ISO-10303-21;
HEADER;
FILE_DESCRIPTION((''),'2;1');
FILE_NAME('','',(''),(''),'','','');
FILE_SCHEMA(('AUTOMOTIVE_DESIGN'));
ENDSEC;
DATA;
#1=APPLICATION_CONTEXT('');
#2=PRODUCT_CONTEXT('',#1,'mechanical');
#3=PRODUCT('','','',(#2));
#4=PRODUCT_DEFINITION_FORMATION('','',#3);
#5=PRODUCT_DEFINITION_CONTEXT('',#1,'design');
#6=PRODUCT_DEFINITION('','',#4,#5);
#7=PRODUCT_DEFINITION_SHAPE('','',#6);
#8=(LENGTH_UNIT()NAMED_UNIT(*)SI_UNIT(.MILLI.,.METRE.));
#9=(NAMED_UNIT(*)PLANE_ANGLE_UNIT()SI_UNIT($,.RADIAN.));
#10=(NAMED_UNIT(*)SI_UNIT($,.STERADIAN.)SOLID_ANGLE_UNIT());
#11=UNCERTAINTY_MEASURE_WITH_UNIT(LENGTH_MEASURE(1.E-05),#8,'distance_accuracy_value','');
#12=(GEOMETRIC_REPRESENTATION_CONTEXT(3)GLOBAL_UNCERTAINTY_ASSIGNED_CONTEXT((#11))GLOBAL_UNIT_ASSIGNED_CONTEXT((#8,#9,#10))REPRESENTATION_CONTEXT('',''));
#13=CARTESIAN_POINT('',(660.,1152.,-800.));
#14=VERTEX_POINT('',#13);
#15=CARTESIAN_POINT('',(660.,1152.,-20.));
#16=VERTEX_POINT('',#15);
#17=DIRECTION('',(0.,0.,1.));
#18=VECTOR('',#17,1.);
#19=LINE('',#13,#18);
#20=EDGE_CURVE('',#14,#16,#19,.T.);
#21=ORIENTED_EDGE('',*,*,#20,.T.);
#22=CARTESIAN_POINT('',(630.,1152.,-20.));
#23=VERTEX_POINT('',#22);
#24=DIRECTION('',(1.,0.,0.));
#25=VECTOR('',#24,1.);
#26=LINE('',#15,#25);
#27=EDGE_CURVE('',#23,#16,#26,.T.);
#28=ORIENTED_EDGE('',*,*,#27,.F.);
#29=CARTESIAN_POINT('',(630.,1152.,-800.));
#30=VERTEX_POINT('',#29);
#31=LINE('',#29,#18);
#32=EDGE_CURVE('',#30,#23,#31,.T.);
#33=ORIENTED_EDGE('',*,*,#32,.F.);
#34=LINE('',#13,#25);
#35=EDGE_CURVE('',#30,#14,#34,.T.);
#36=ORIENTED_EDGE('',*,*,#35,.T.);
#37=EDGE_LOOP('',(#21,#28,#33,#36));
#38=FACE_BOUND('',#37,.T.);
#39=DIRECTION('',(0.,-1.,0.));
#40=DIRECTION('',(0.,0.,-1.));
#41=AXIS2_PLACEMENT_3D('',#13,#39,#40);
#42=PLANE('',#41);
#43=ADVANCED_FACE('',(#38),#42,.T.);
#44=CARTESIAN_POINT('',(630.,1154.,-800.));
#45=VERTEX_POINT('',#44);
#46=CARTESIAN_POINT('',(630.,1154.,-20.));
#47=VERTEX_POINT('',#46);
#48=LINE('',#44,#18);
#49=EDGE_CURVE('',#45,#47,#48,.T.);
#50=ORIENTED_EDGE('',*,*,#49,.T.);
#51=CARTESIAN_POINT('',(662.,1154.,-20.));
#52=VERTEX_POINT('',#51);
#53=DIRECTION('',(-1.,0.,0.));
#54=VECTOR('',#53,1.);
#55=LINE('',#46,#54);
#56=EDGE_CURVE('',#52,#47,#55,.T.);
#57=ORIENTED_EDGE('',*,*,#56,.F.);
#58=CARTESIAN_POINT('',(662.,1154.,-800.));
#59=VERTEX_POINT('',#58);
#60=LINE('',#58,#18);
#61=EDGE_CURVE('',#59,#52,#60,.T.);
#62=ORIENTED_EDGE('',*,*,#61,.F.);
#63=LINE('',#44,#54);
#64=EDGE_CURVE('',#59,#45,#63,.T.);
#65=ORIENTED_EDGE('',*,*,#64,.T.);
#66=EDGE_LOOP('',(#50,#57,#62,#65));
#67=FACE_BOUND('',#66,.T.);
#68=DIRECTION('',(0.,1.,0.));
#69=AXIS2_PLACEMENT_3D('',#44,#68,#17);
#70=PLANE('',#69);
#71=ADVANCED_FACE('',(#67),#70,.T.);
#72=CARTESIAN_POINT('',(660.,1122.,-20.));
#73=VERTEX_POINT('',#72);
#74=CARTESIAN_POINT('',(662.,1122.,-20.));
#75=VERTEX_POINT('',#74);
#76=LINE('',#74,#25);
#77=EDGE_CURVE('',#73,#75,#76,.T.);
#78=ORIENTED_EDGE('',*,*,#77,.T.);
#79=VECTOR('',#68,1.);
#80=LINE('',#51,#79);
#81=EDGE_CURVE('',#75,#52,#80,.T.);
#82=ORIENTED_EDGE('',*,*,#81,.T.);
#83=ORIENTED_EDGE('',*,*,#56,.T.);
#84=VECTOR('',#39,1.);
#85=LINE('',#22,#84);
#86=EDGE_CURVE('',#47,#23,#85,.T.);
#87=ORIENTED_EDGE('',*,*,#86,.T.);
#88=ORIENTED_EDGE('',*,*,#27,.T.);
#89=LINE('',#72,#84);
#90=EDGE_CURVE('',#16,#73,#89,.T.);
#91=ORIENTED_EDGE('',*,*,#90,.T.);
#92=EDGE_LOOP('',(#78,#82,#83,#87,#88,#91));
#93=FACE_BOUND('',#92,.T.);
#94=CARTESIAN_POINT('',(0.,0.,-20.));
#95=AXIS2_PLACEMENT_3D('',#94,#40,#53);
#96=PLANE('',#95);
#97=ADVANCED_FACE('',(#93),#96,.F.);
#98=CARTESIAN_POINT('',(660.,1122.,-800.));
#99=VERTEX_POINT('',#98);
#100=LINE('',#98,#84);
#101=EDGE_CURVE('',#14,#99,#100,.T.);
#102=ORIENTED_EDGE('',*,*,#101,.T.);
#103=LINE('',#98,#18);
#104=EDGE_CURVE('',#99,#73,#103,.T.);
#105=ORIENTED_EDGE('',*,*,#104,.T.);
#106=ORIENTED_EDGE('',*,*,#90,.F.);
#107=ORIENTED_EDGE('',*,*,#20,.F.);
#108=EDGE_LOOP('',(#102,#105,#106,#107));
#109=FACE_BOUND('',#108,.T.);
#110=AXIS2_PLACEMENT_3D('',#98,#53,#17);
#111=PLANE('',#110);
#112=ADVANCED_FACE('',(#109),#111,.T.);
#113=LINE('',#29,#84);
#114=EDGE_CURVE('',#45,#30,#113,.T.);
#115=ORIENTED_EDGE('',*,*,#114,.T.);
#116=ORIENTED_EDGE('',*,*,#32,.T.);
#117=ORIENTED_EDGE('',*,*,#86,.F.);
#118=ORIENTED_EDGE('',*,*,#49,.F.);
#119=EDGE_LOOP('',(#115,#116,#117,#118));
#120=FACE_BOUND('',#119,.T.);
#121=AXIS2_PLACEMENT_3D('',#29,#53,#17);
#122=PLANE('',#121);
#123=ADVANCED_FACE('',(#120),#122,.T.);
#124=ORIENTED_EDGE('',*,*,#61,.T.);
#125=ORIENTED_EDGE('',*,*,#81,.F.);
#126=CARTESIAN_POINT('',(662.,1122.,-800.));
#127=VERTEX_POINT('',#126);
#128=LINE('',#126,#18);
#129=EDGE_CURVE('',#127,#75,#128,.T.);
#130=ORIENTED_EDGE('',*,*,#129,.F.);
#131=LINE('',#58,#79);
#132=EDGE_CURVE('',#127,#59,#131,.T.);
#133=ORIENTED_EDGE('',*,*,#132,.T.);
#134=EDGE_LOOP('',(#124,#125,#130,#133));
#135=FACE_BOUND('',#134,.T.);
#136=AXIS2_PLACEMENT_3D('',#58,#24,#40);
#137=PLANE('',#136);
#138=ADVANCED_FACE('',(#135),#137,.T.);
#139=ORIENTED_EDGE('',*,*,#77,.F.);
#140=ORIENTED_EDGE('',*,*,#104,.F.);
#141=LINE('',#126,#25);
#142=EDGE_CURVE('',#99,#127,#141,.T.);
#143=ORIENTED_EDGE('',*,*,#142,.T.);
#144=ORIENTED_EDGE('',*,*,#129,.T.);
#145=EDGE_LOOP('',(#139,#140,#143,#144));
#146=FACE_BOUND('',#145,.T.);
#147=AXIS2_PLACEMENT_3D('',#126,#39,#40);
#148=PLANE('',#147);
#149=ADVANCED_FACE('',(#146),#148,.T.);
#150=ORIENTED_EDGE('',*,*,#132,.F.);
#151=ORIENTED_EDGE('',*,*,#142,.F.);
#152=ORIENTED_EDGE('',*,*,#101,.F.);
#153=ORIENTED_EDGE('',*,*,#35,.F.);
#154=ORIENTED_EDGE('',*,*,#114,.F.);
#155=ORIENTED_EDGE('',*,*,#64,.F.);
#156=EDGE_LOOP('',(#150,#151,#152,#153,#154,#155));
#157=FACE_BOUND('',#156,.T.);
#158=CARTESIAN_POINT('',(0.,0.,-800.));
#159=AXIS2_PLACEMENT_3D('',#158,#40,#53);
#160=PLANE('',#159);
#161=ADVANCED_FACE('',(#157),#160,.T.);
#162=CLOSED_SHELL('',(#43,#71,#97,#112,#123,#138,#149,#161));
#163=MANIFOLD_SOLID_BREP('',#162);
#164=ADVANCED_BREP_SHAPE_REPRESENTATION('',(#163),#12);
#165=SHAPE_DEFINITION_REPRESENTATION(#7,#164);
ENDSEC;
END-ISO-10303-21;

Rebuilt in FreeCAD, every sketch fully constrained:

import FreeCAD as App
import Part
import Sketcher

V = App.Vector

doc = App.newDocument("Part")
body = doc.addObject("PartDesign::Body", "Body")

# Sketch on XY plane
sketch1 = doc.addObject("Sketcher::SketchObject", "Sketch")
body.addObject(sketch1)
sketch1.AttachmentSupport = (doc.XY_Plane, [""])
sketch1.MapMode = "FlatFace"
sketch1.AttachmentOffset = App.Placement(V(0, 0, -20), App.Rotation())
sketch1.addGeometry(Part.LineSegment(V(660, 1122, 0), V(662, 1122, 0)), False)
sketch1.addGeometry(Part.LineSegment(V(662, 1122, 0), V(662, 1154, 0)), False)
sketch1.addGeometry(Part.LineSegment(V(662, 1154, 0), V(630, 1154, 0)), False)
sketch1.addGeometry(Part.LineSegment(V(630, 1154, 0), V(630, 1152, 0)), False)
sketch1.addGeometry(Part.LineSegment(V(630, 1152, 0), V(660, 1152, 0)), False)
sketch1.addGeometry(Part.LineSegment(V(660, 1152, 0), V(660, 1122, 0)), False)
sketch1.addConstraint(Sketcher.Constraint("Coincident", 0, 2, 1, 1))
sketch1.addConstraint(Sketcher.Constraint("Coincident", 1, 2, 2, 1))
sketch1.addConstraint(Sketcher.Constraint("Coincident", 2, 2, 3, 1))
sketch1.addConstraint(Sketcher.Constraint("Coincident", 3, 2, 4, 1))
sketch1.addConstraint(Sketcher.Constraint("Coincident", 4, 2, 5, 1))
sketch1.addConstraint(Sketcher.Constraint("Coincident", 5, 2, 0, 1))
sketch1.addConstraint(Sketcher.Constraint("Horizontal", 0))
sketch1.addConstraint(Sketcher.Constraint("Vertical", 1))
sketch1.addConstraint(Sketcher.Constraint("Horizontal", 2))
sketch1.addConstraint(Sketcher.Constraint("Vertical", 3))
sketch1.addConstraint(Sketcher.Constraint("Horizontal", 4))
sketch1.addConstraint(Sketcher.Constraint("Vertical", 5))
sketch1.addConstraint(Sketcher.Constraint("Equal", 2, 1))
sketch1.addConstraint(Sketcher.Constraint("Equal", 0, 3))
sketch1.addConstraint(Sketcher.Constraint("DistanceX", 0, 1, 0, 2, 2.0))
sketch1.addConstraint(Sketcher.Constraint("DistanceX", 2, 2, 2, 1, 32.0))
sketch1.addConstraint(Sketcher.Constraint("DistanceX", -1, 1, 0, 2, 662.0))
sketch1.addConstraint(Sketcher.Constraint("DistanceY", -1, 1, 0, 2, 1122.0))
pad1 = doc.addObject("PartDesign::Pad", "Pad")
body.addObject(pad1)
pad1.Profile = sketch1
pad1.Length = 780
pad1.Reversed = True

doc.recompute()
